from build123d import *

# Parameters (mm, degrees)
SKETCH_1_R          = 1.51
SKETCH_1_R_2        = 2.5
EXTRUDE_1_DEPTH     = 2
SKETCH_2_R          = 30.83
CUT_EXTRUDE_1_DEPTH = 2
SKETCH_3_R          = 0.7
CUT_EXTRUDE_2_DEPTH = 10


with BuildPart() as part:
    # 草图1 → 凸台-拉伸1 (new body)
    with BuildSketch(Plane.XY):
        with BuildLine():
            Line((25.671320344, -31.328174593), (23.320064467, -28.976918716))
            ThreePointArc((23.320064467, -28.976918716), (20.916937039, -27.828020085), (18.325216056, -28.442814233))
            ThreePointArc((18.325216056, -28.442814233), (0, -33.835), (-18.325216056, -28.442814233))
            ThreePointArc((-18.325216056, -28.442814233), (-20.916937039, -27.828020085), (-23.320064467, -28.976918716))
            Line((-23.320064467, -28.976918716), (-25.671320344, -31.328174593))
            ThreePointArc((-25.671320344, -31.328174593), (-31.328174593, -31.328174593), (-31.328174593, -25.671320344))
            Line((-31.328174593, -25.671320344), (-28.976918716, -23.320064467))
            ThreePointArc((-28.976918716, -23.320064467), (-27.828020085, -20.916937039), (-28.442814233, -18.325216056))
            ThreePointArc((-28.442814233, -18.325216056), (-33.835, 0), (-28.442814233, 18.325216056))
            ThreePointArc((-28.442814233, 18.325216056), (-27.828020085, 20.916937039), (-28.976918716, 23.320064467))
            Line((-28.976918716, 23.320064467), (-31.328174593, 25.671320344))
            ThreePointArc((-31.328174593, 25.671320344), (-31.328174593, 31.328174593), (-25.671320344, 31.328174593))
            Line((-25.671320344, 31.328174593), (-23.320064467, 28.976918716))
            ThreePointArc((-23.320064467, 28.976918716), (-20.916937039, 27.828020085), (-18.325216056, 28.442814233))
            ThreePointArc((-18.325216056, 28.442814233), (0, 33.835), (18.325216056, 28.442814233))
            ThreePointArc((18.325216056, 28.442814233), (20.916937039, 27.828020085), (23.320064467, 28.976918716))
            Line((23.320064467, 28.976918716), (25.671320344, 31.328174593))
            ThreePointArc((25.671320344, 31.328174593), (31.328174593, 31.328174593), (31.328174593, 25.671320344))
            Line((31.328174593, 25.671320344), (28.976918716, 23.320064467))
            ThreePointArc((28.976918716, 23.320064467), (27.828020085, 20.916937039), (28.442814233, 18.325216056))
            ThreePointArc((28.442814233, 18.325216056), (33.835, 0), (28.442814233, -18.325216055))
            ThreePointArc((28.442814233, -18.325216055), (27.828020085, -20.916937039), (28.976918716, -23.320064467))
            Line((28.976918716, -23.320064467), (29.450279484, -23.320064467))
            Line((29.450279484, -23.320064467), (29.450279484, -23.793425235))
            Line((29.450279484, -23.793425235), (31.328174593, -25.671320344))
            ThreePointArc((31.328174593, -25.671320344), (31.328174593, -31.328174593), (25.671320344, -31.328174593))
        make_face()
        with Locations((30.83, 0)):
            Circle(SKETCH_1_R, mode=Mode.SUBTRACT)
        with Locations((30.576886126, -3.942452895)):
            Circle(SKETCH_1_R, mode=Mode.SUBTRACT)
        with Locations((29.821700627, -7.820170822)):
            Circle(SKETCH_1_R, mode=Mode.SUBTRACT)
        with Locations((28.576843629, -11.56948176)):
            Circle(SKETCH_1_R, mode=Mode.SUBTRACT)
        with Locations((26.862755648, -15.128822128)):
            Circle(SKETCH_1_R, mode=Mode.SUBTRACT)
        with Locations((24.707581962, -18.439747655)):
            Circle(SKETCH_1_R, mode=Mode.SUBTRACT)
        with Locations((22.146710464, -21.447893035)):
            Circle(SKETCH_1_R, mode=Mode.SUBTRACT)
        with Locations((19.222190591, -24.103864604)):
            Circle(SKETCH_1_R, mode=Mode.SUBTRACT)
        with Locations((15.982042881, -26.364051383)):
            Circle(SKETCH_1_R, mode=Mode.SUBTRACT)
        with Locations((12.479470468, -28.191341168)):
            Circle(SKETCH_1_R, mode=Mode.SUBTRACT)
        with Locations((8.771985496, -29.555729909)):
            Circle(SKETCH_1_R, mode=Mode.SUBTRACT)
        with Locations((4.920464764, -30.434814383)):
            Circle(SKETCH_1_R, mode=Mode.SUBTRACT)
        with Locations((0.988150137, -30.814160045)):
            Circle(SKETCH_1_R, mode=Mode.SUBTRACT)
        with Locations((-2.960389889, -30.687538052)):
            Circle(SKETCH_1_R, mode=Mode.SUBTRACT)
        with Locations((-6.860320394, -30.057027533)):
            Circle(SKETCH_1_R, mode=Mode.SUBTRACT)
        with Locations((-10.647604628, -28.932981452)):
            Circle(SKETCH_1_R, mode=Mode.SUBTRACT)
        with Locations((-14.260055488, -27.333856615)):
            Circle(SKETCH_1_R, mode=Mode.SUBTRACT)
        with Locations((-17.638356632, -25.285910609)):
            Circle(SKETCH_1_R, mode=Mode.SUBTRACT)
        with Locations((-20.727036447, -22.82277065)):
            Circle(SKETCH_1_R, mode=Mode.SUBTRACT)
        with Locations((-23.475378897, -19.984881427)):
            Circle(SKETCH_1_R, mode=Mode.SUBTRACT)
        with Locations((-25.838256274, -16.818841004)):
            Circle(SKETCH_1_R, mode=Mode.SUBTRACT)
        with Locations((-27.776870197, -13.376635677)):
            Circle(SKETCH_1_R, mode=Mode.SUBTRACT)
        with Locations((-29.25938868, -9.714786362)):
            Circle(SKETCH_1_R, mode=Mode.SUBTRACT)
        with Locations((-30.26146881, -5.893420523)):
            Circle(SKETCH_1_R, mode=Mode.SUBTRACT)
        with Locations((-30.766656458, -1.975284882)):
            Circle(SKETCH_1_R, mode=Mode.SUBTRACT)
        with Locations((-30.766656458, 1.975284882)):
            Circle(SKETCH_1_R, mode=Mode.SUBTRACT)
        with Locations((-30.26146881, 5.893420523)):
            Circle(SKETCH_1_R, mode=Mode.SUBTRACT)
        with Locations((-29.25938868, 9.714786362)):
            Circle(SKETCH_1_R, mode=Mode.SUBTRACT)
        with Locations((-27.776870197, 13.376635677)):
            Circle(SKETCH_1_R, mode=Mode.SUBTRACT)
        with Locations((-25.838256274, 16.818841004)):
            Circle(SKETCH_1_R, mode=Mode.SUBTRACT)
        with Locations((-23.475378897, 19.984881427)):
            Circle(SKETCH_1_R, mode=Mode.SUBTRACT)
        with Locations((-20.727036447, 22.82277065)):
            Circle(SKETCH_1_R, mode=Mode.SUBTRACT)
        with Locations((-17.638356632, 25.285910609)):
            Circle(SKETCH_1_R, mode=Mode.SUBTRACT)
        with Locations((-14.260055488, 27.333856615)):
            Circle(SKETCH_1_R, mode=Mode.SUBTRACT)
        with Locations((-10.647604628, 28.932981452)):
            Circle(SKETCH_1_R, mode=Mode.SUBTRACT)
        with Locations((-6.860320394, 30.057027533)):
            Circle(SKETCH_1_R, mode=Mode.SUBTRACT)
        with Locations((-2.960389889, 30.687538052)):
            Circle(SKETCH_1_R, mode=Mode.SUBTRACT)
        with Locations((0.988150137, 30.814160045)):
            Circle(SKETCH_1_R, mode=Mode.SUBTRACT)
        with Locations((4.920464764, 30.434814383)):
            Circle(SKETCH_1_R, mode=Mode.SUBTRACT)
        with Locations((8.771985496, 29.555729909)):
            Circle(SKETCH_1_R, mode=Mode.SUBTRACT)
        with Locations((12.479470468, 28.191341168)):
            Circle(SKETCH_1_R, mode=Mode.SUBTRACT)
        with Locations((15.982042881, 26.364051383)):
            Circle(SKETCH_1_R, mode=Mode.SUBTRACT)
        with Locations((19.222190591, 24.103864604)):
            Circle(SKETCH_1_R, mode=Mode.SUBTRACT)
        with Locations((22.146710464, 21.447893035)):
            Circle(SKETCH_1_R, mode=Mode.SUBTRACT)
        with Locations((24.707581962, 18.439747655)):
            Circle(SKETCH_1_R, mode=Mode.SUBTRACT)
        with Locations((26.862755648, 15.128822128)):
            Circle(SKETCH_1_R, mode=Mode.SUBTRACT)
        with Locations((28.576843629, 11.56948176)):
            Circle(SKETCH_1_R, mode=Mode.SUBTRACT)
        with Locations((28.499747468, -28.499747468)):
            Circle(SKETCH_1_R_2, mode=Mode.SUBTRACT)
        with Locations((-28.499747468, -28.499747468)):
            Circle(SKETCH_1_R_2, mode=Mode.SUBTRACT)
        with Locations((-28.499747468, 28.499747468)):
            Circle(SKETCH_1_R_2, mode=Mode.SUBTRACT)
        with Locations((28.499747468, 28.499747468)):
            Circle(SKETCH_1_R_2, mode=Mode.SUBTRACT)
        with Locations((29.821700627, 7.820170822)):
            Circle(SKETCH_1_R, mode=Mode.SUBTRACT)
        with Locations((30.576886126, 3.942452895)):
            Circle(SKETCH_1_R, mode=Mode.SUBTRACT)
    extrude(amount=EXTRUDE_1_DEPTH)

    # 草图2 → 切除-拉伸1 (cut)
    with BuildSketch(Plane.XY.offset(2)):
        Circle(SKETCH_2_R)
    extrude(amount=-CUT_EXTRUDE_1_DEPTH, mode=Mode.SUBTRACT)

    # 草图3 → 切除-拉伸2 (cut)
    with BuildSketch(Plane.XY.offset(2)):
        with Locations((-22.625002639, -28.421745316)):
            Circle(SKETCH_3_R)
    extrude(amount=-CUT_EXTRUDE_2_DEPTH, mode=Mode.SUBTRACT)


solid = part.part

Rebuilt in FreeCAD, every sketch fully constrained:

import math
import FreeCAD as App
import Part
import Sketcher
Q = App.Units.Quantity

doc = App.newDocument("Part")
body = doc.addObject("PartDesign::Body", "Body")

sketch1 = body.newObject("Sketcher::SketchObject", "Sketch")
sketch1.AttachmentSupport = (doc.getObject("XY_Plane"), [""])
sketch1.MapMode = "FlatFace"
sketch1.addGeometry([
    Part.LineSegment(App.Vector(23.320064, -28.976919, 0), App.Vector(25.67132, -31.328175, 0)),
    Part.ArcOfCircle(Part.Circle(App.Vector(28.499747, -28.499747, 0), App.Vector(0, 0, 1), 4), math.radians(-135), math.radians(45)),
    Part.LineSegment(App.Vector(31.328175, -25.67132, 0), App.Vector(29.450279, -23.793425, 0)),
    Part.LineSegment(App.Vector(29.450279, -23.793425, 0), App.Vector(29.450279, -23.320064, 0)),
    Part.LineSegment(App.Vector(29.450279, -23.320064, 0), App.Vector(28.976919, -23.320064, 0)),
    Part.ArcOfCircle(Part.Circle(App.Vector(31.805346, -20.491637, 0), App.Vector(0, 0, 1), 4), math.radians(147.207013), math.radians(225)),
    Part.ArcOfCircle(Part.Circle(App.Vector(0, 0, 0), App.Vector(0, 0, 1), 33.835), math.radians(-32.792987), math.radians(32.792987)),
    Part.ArcOfCircle(Part.Circle(App.Vector(31.805346, 20.491637, 0), App.Vector(0, 0, 1), 4), math.radians(135), math.radians(212.792987)),
    Part.LineSegment(App.Vector(28.976919, 23.320064, 0), App.Vector(31.328175, 25.67132, 0)),
    Part.ArcOfCircle(Part.Circle(App.Vector(28.499747, 28.499747, 0), App.Vector(0, 0, 1), 4), math.radians(-45), math.radians(135)),
    Part.LineSegment(App.Vector(25.67132, 31.328175, 0), App.Vector(23.320064, 28.976919, 0)),
    Part.ArcOfCircle(Part.Circle(App.Vector(20.491637, 31.805346, 0), App.Vector(0, 0, 1), 4), math.radians(-122.792987), math.radians(-45)),
    Part.ArcOfCircle(Part.Circle(App.Vector(0, 0, 0), App.Vector(0, 0, 1), 33.835), math.radians(57.207013), math.radians(122.792987)),
    Part.ArcOfCircle(Part.Circle(App.Vector(-20.491637, 31.805346, 0), App.Vector(0, 0, 1), 4), math.radians(-135), math.radians(-57.207013)),
    Part.LineSegment(App.Vector(-23.320064, 28.976919, 0), App.Vector(-25.67132, 31.328175, 0)),
    Part.ArcOfCircle(Part.Circle(App.Vector(-28.499747, 28.499747, 0), App.Vector(0, 0, 1), 4), math.radians(45), math.radians(225)),
    Part.LineSegment(App.Vector(-31.328175, 25.67132, 0), App.Vector(-28.976919, 23.320064, 0)),
    Part.ArcOfCircle(Part.Circle(App.Vector(-31.805346, 20.491637, 0), App.Vector(0, 0, 1), 4), math.radians(-32.792987), math.radians(45)),
    Part.ArcOfCircle(Part.Circle(App.Vector(0, 0, 0), App.Vector(0, 0, 1), 33.835), math.radians(147.207013), math.radians(212.792987)),
    Part.ArcOfCircle(Part.Circle(App.Vector(-31.805346, -20.491637, 0), App.Vector(0, 0, 1), 4), math.radians(-45), math.radians(32.792987)),
    Part.LineSegment(App.Vector(-28.976919, -23.320064, 0), App.Vector(-31.328175, -25.67132, 0)),
    Part.ArcOfCircle(Part.Circle(App.Vector(-28.499747, -28.499747, 0), App.Vector(0, 0, 1), 4), math.radians(135), math.radians(315)),
    Part.LineSegment(App.Vector(-25.67132, -31.328175, 0), App.Vector(-23.320064, -28.976919, 0)),
    Part.ArcOfCircle(Part.Circle(App.Vector(-20.491637, -31.805346, 0), App.Vector(0, 0, 1), 4), math.radians(57.207013), math.radians(135)),
    Part.ArcOfCircle(Part.Circle(App.Vector(0, 0, 0), App.Vector(0, 0, 1), 33.835), math.radians(-122.792987), math.radians(-57.207013)),
    Part.ArcOfCircle(Part.Circle(App.Vector(20.491637, -31.805346, 0), App.Vector(0, 0, 1), 4), math.radians(45), math.radians(122.792987)),
    Part.Circle(App.Vector(28.499747, -28.499747, 0), App.Vector(0, 0, 1), 2.5),
    Part.Circle(App.Vector(24.707582, -18.439748, 0), App.Vector(0, 0, 1), 1.51),
    Part.Circle(App.Vector(22.14671, -21.447893, 0), App.Vector(0, 0, 1), 1.51),
    Part.Circle(App.Vector(19.222191, -24.103865, 0), App.Vector(0, 0, 1), 1.51),
    Part.Circle(App.Vector(8.771985, -29.55573, 0), App.Vector(0, 0, 1), 1.51),
    Part.Circle(App.Vector(15.982043, -26.364051, 0), App.Vector(0, 0, 1), 1.51),
    Part.Circle(App.Vector(12.47947, -28.191341, 0), App.Vector(0, 0, 1), 1.51),
    Part.Circle(App.Vector(4.920465, -30.434814, 0), App.Vector(0, 0, 1), 1.51),
    Part.Circle(App.Vector(0.98815, -30.81416, 0), App.Vector(0, 0, 1), 1.51),
    Part.Circle(App.Vector(26.862756, -15.128822, 0), App.Vector(0, 0, 1), 1.51),
    Part.Circle(App.Vector(28.576844, -11.569482, 0), App.Vector(0, 0, 1), 1.51),
    Part.Circle(App.Vector(29.821701, -7.820171, 0), App.Vector(0, 0, 1), 1.51),
    Part.Circle(App.Vector(30.576886, -3.942453, 0), App.Vector(0, 0, 1), 1.51),
    Part.Circle(App.Vector(-2.96039, -30.687538, 0), App.Vector(0, 0, 1), 1.51),
    Part.Circle(App.Vector(-6.86032, -30.057028, 0), App.Vector(0, 0, 1), 1.51),
    Part.Circle(App.Vector(-10.647605, -28.932981, 0), App.Vector(0, 0, 1), 1.51),
    Part.Circle(App.Vector(-14.260055, -27.333857, 0), App.Vector(0, 0, 1), 1.51),
    Part.Circle(App.Vector(-17.638357, -25.285911, 0), App.Vector(0, 0, 1), 1.51),
    Part.Circle(App.Vector(-28.499747, -28.499747, 0), App.Vector(0, 0, 1), 2.5),
    Part.Circle(App.Vector(-20.727036, -22.822771, 0), App.Vector(0, 0, 1), 1.51),
    Part.Circle(App.Vector(-23.475379, -19.984881, 0), App.Vector(0, 0, 1), 1.51),
    Part.Circle(App.Vector(-25.838256, -16.818841, 0), App.Vector(0, 0, 1), 1.51),
    Part.Circle(App.Vector(-27.77687, -13.376636, 0), App.Vector(0, 0, 1), 1.51),
    Part.Circle(App.Vector(-29.259389, -9.714786, 0), App.Vector(0, 0, 1), 1.51),
    Part.Circle(App.Vector(-30.261469, -5.893421, 0), App.Vector(0, 0, 1), 1.51),
    Part.Circle(App.Vector(-30.766656, -1.975285, 0), App.Vector(0, 0, 1), 1.51),
    Part.Circle(App.Vector(30.83, 0, 0), App.Vector(0, 0, 1), 1.51),
    Part.Circle(App.Vector(30.576886, 3.942453, 0), App.Vector(0, 0, 1), 1.51),
    Part.Circle(App.Vector(29.821701, 7.820171, 0), App.Vector(0, 0, 1), 1.51),
    Part.Circle(App.Vector(28.576844, 11.569482, 0), App.Vector(0, 0, 1), 1.51),
    Part.Circle(App.Vector(26.862756, 15.128822, 0), App.Vector(0, 0, 1), 1.51),
    Part.Circle(App.Vector(24.707582, 18.439748, 0), App.Vector(0, 0, 1), 1.51),
    Part.Circle(App.Vector(22.14671, 21.447893, 0), App.Vector(0, 0, 1), 1.51),
    Part.Circle(App.Vector(19.222191, 24.103865, 0), App.Vector(0, 0, 1), 1.51),
    Part.Circle(App.Vector(28.499747, 28.499747, 0), App.Vector(0, 0, 1), 2.5),
    Part.Circle(App.Vector(15.982043, 26.364051, 0), App.Vector(0, 0, 1), 1.51),
    Part.Circle(App.Vector(12.47947, 28.191341, 0), App.Vector(0, 0, 1), 1.51),
    Part.Circle(App.Vector(8.771985, 29.55573, 0), App.Vector(0, 0, 1), 1.51),
    Part.Circle(App.Vector(4.920465, 30.434814, 0), App.Vector(0, 0, 1), 1.51),
    Part.Circle(App.Vector(0.98815, 30.81416, 0), App.Vector(0, 0, 1), 1.51),
    Part.Circle(App.Vector(-30.766656, 1.975285, 0), App.Vector(0, 0, 1), 1.51),
    Part.Circle(App.Vector(-30.261469, 5.893421, 0), App.Vector(0, 0, 1), 1.51),
    Part.Circle(App.Vector(-29.259389, 9.714786, 0), App.Vector(0, 0, 1), 1.51),
    Part.Circle(App.Vector(-27.77687, 13.376636, 0), App.Vector(0, 0, 1), 1.51),
    Part.Circle(App.Vector(-2.96039, 30.687538, 0), App.Vector(0, 0, 1), 1.51),
    Part.Circle(App.Vector(-6.86032, 30.057028, 0), App.Vector(0, 0, 1), 1.51),
    Part.Circle(App.Vector(-14.260055, 27.333857, 0), App.Vector(0, 0, 1), 1.51),
    Part.Circle(App.Vector(-10.647605, 28.932981, 0), App.Vector(0, 0, 1), 1.51),
    Part.Circle(App.Vector(-23.475379, 19.984881, 0), App.Vector(0, 0, 1), 1.51),
    Part.Circle(App.Vector(-20.727036, 22.822771, 0), App.Vector(0, 0, 1), 1.51),
    Part.Circle(App.Vector(-25.838256, 16.818841, 0), App.Vector(0, 0, 1), 1.51),
    Part.Circle(App.Vector(-17.638357, 25.285911, 0), App.Vector(0, 0, 1), 1.51),
    Part.Circle(App.Vector(-28.499747, 28.499747, 0), App.Vector(0, 0, 1), 2.5),
], False)
sketch1.addConstraint([
    Sketcher.Constraint("Tangent", 0, 2, 1, 1),
    Sketcher.Constraint("Tangent", 1, 2, 2, 1),
    Sketcher.Constraint("Coincident", 2, 2, 3, 1),
    Sketcher.Constraint("Coincident", 3, 2, 4, 1),
    Sketcher.Constraint("Coincident", 4, 2, 5, 2),
    Sketcher.Constraint("Tangent", 5, 1, 6, 1),
    Sketcher.Constraint("Tangent", 6, 2, 7, 2),
    Sketcher.Constraint("Tangent", 7, 1, 8, 1),
    Sketcher.Constraint("Tangent", 8, 2, 9, 1),
    Sketcher.Constraint("Tangent", 9, 2, 10, 1),
    Sketcher.Constraint("Tangent", 10, 2, 11, 2),
    Sketcher.Constraint("Tangent", 11, 1, 12, 1),
    Sketcher.Constraint("Tangent", 12, 2, 13, 2),
    Sketcher.Constraint("Tangent", 13, 1, 14, 1),
    Sketcher.Constraint("Tangent", 14, 2, 15, 1),
    Sketcher.Constraint("Tangent", 15, 2, 16, 1),
    Sketcher.Constraint("Tangent", 16, 2, 17, 2),
    Sketcher.Constraint("Tangent", 17, 1, 18, 1),
    Sketcher.Constraint("Tangent", 18, 2, 19, 2),
    Sketcher.Constraint("Tangent", 19, 1, 20, 1),
    Sketcher.Constraint("Tangent", 20, 2, 21, 1),
    Sketcher.Constraint("Tangent", 21, 2, 22, 1),
    Sketcher.Constraint("Tangent", 22, 2, 23, 2),
    Sketcher.Constraint("Tangent", 23, 1, 24, 1),
    Sketcher.Constraint("Tangent", 24, 2, 25, 2),
    Sketcher.Constraint("Tangent", 25, 1, 0, 1),
    Sketcher.Constraint("Vertical", 3),
    Sketcher.Constraint("Horizontal", 4),
    Sketcher.Constraint("Coincident", 6, 3, -1, 1),
    Sketcher.Constraint("Coincident", 12, 3, -1, 1),
    Sketcher.Constraint("Coincident", 18, 3, -1, 1),
    Sketcher.Constraint("Coincident", 24, 3, -1, 1),
    Sketcher.Constraint("Coincident", 26, 3, 1, 3),
    Sketcher.Constraint("Coincident", 44, 3, 21, 3),
    Sketcher.Constraint("Coincident", 60, 3, 9, 3),
    Sketcher.Constraint("Coincident", 78, 3, 15, 3),
    Sketcher.Constraint("Equal", 1, 5),
    Sketcher.Constraint("Equal", 5, 7),
    Sketcher.Constraint("Equal", 7, 9),
    Sketcher.Constraint("Equal", 9, 11),
    Sketcher.Constraint("Equal", 6, 12),
    Sketcher.Constraint("Equal", 11, 13),
    Sketcher.Constraint("Equal", 13, 15),
    Sketcher.Constraint("Equal", 15, 17),
    Sketcher.Constraint("Equal", 12, 18),
    Sketcher.Constraint("Equal", 17, 19),
    Sketcher.Constraint("Equal", 19, 21),
    Sketcher.Constraint("Equal", 21, 23),
    Sketcher.Constraint("Equal", 18, 24),
    Sketcher.Constraint("Equal", 23, 25),
    Sketcher.Constraint("Equal", 27, 28),
    Sketcher.Constraint("Equal", 28, 29),
    Sketcher.Constraint("Equal", 29, 30),
    Sketcher.Constraint("Equal", 30, 31),
    Sketcher.Constraint("Equal", 31, 32),
    Sketcher.Constraint("Equal", 32, 33),
    Sketcher.Constraint("Equal", 33, 34),
    Sketcher.Constraint("Equal", 34, 35),
    Sketcher.Constraint("Equal", 35, 36),
    Sketcher.Constraint("Equal", 36, 37),
    Sketcher.Constraint("Equal", 37, 38),
    Sketcher.Constraint("Equal", 38, 39),
    Sketcher.Constraint("Equal", 39, 40),
    Sketcher.Constraint("Equal", 40, 41),
    Sketcher.Constraint("Equal", 41, 42),
    Sketcher.Constraint("Equal", 42, 43),
    Sketcher.Constraint("Equal", 26, 44),
    Sketcher.Constraint("Equal", 43, 45),
    Sketcher.Constraint("Equal", 45, 46),
    Sketcher.Constraint("Equal", 46, 47),
    Sketcher.Constraint("Equal", 47, 48),
    Sketcher.Constraint("Equal", 48, 49),
    Sketcher.Constraint("Equal", 49, 50),
    Sketcher.Constraint("Equal", 50, 51),
    Sketcher.Constraint("Equal", 51, 52),
    Sketcher.Constraint("Equal", 52, 53),
    Sketcher.Constraint("Equal", 53, 54),
    Sketcher.Constraint("Equal", 54, 55),
    Sketcher.Constraint("Equal", 55, 56),
    Sketcher.Constraint("Equal", 56, 57),
    Sketcher.Constraint("Equal", 57, 58),
    Sketcher.Constraint("Equal", 58, 59),
    Sketcher.Constraint("Equal", 44, 60),
    Sketcher.Constraint("Equal", 59, 61),
    Sketcher.Constraint("Equal", 61, 62),
    Sketcher.Constraint("Equal", 62, 63),
    Sketcher.Constraint("Equal", 63, 64),
    Sketcher.Constraint("Equal", 64, 65),
    Sketcher.Constraint("Equal", 65, 66),
    Sketcher.Constraint("Equal", 66, 67),
    Sketcher.Constraint("Equal", 67, 68),
    Sketcher.Constraint("Equal", 68, 69),
    Sketcher.Constraint("Equal", 69, 70),
    Sketcher.Constraint("Equal", 70, 71),
    Sketcher.Constraint("Equal", 71, 72),
    Sketcher.Constraint("Equal", 72, 73),
    Sketcher.Constraint("Equal", 73, 74),
    Sketcher.Constraint("Equal", 74, 75),
    Sketcher.Constraint("Equal", 75, 76),
    Sketcher.Constraint("Equal", 76, 77),
    Sketcher.Constraint("Equal", 60, 78),
    Sketcher.Constraint("Symmetric", 1, 3, 15, 3, -1, 1),
    Sketcher.Constraint("Symmetric", 9, 3, 21, 3, -1, 1),
    Sketcher.Constraint("Symmetric", 4, 2, 16, 2, -1, 1),
    Sketcher.Constraint("Symmetric", 9, 3, 15, 3, -2),
    Sketcher.Constraint("Symmetric", 38, 3, 53, 3, -1),
    Sketcher.Constraint("Symmetric", 37, 3, 54, 3, -1),
    Sketcher.Constraint("Symmetric", 36, 3, 55, 3, -1),
    Sketcher.Constraint("Symmetric", 35, 3, 56, 3, -1),
    Sketcher.Constraint("Symmetric", 27, 3, 57, 3, -1),
    Sketcher.Constraint("Symmetric", 28, 3, 58, 3, -1),
    Sketcher.Constraint("Symmetric", 29, 3, 59, 3, -1),
    Sketcher.Constraint("Symmetric", 31, 3, 61, 3, -1),
    Sketcher.Constraint("Symmetric", 32, 3, 62, 3, -1),
    Sketcher.Constraint("Symmetric", 30, 3, 63, 3, -1),
    Sketcher.Constraint("Symmetric", 33, 3, 64, 3, -1),
    Sketcher.Constraint("Symmetric", 34, 3, 65, 3, -1),
    Sketcher.Constraint("Symmetric", 51, 3, 66, 3, -1),
    Sketcher.Constraint("Symmetric", 50, 3, 67, 3, -1),
    Sketcher.Constraint("Symmetric", 49, 3, 68, 3, -1),
    Sketcher.Constraint("Symmetric", 48, 3, 69, 3, -1),
    Sketcher.Constraint("Symmetric", 39, 3, 70, 3, -1),
    Sketcher.Constraint("Symmetric", 40, 3, 71, 3, -1),
    Sketcher.Constraint("Symmetric", 42, 3, 72, 3, -1),
    Sketcher.Constraint("Symmetric", 41, 3, 73, 3, -1),
    Sketcher.Constraint("Symmetric", 46, 3, 74, 3, -1),
    Sketcher.Constraint("Symmetric", 45, 3, 75, 3, -1),
    Sketcher.Constraint("Symmetric", 47, 3, 76, 3, -1),
    Sketcher.Constraint("Symmetric", 43, 3, 77, 3, -1),
    Sketcher.Constraint("PointOnObject", 52, 3, -1),
    Sketcher.Constraint("Parallel", 0, 2),
    Sketcher.Constraint("Perpendicular", 2, 8),
    Sketcher.Constraint("Parallel", 8, 10),
    Sketcher.Constraint("Perpendicular", 10, 14),
    Sketcher.Constraint("Parallel", 14, 16),
    Sketcher.Constraint("Perpendicular", 16, 20),
    Sketcher.Constraint("Parallel", 20, 22),
    Sketcher.Constraint("Horizontal", 11, 3, 13, 3),
    Sketcher.Constraint("Equal", 0, 8),
    Sketcher.Constraint("Diameter", 26, Q("5 mm")),
    Sketcher.Constraint("Radius", 1, Q("4 mm")),
    Sketcher.Constraint("Diameter", 27, Q("3.02 mm")),
    Sketcher.Constraint("Radius", 6, Q("33.835 mm")),
    Sketcher.Constraint("DistanceX", -1, 1, 52, 3, Q("30.83 mm")),
    Sketcher.Constraint("DistanceX", 4, 2, 4, 1, Q("0.473361 mm")),
    Sketcher.Constraint("DistanceX", -1, 1, 37, 3, Q("29.821701 mm")),
    Sketcher.Constraint("DistanceX", -1, 1, 27, 3, Q("24.707582 mm")),
    Sketcher.Constraint("DistanceX", -1, 1, 28, 3, Q("22.14671 mm")),
    Sketcher.Constraint("DistanceX", -1, 1, 29, 3, Q("19.222191 mm")),
    Sketcher.Constraint("DistanceY", 30, 3, -1, 1, Q("29.55573 mm")),
    Sketcher.Constraint("DistanceY", 31, 3, -1, 1, Q("26.364051 mm")),
    Sketcher.Constraint("DistanceX", -1, 1, 32, 3, Q("12.47947 mm")),
    Sketcher.Constraint("DistanceY", 32, 3, -1, 1, Q("28.191341 mm")),
    Sketcher.Constraint("DistanceX", -1, 1, 34, 3, Q("0.98815 mm")),
    Sketcher.Constraint("DistanceY", 34, 3, -1, 1, Q("30.81416 mm")),
    Sketcher.Constraint("DistanceY", 36, 3, -1, 1, Q("11.569482 mm")),
    Sketcher.Constraint("DistanceY", 37, 3, -1, 1, Q("7.820171 mm")),
    Sketcher.Constraint("DistanceX", 39, 3, -1, 1, Q("2.96039 mm")),
    Sketcher.Constraint("DistanceY", 39, 3, -1, 1, Q("30.687538 mm")),
    Sketcher.Constraint("DistanceX", 40, 3, -1, 1, Q("6.86032 mm")),
    Sketcher.Constraint("DistanceY", 41, 3, -1, 1, Q("28.932981 mm")),
    Sketcher.Constraint("DistanceY", 43, 3, -1, 1, Q("25.285911 mm")),
    Sketcher.Constraint("DistanceY", 45, 3, -1, 1, Q("22.822771 mm")),
    Sketcher.Constraint("DistanceX", 46, 3, -1, 1, Q("23.475379 mm")),
    Sketcher.Constraint("DistanceY", 46, 3, -1, 1, Q("19.984881 mm")),
    Sketcher.Constraint("DistanceY", 47, 3, -1, 1, Q("16.818841 mm")),
    Sketcher.Constraint("DistanceX", 48, 3, -1, 1, Q("27.77687 mm")),
    Sketcher.Constraint("DistanceX", 49, 3, -1, 1, Q("29.259389 mm")),
    Sketcher.Constraint("DistanceX", 50, 3, -1, 1, Q("30.261469 mm")),
    Sketcher.Constraint("DistanceY", 50, 3, -1, 1, Q("5.893421 mm")),
    Sketcher.Constraint("DistanceX", -1, 1, 0, 2, Q("25.67132 mm")),
    Sketcher.Constraint("DistanceY", 27, 3, -1, 1, Q("18.439748 mm")),
    Sketcher.Constraint("DistanceY", 28, 3, -1, 1, Q("21.447893 mm")),
    Sketcher.Constraint("DistanceY", 29, 3, -1, 1, Q("24.103865 mm")),
    Sketcher.Constraint("DistanceX", -1, 1, 30, 3, Q("8.771985 mm")),
    Sketcher.Constraint("DistanceX", -1, 1, 31, 3, Q("15.982043 mm")),
    Sketcher.Constraint("DistanceX", -1, 1, 33, 3, Q("4.920465 mm")),
    Sketcher.Constraint("DistanceY", 33, 3, -1, 1, Q("30.434814 mm")),
    Sketcher.Constraint("DistanceX", -1, 1, 35, 3, Q("26.862756 mm")),
    Sketcher.Constraint("DistanceY", 35, 3, -1, 1, Q("15.128822 mm")),
    Sketcher.Constraint("DistanceX", -1, 1, 36, 3, Q("28.576844 mm")),
    Sketcher.Constraint("DistanceX", -1, 1, 38, 3, Q("30.576886 mm")),
    Sketcher.Constraint("DistanceY", 38, 3, -1, 1, Q("3.942453 mm")),
    Sketcher.Constraint("DistanceY", 40, 3, -1, 1, Q("30.057028 mm")),
    Sketcher.Constraint("DistanceX", 41, 3, -1, 1, Q("10.647605 mm")),
    Sketcher.Constraint("DistanceX", 42, 3, -1, 1, Q("14.260055 mm")),
    Sketcher.Constraint("DistanceY", 42, 3, -1, 1, Q("27.333857 mm")),
    Sketcher.Constraint("DistanceX", 43, 3, -1, 1, Q("17.638357 mm")),
    Sketcher.Constraint("DistanceX", 45, 3, -1, 1, Q("20.727036 mm")),
    Sketcher.Constraint("DistanceX", 47, 3, -1, 1, Q("25.838256 mm")),
    Sketcher.Constraint("DistanceY", 48, 3, -1, 1, Q("13.376636 mm")),
    Sketcher.Constraint("DistanceY", 49, 3, -1, 1, Q("9.714786 mm")),
    Sketcher.Constraint("DistanceX", 51, 3, -1, 1, Q("30.766656 mm")),
    Sketcher.Constraint("DistanceY", 51, 3, -1, 1, Q("1.975285 mm")),
])
pad1 = body.newObject("PartDesign::Pad", "Pad")
pad1.Profile = sketch1
pad1.Length = 2

sketch2 = body.newObject("Sketcher::SketchObject", "Sketch001")
sketch2.AttachmentSupport = (doc.getObject("XY_Plane"), [""])
sketch2.MapMode = "FlatFace"
sketch2.AttachmentOffset = App.Placement(App.Vector(0, 0, 2), App.Rotation())
sketch2.addGeometry(Part.Circle(App.Vector(0, 0, 0), App.Vector(0, 0, 1), 30.83), False)
sketch2.addConstraint([
    Sketcher.Constraint("Coincident", 0, 3, -1, 1),
    Sketcher.Constraint("Diameter", 0, Q("61.66 mm")),
])
pocket1 = body.newObject("PartDesign::Pocket", "Pocket")
pocket1.Profile = sketch2
pocket1.Length = 2

sketch3 = body.newObject("Sketcher::SketchObject", "Sketch002")
sketch3.AttachmentSupport = (doc.getObject("XY_Plane"), [""])
sketch3.MapMode = "FlatFace"
sketch3.AttachmentOffset = App.Placement(App.Vector(0, 0, 2), App.Rotation())
sketch3.addGeometry(Part.Circle(App.Vector(-22.625003, -28.421745, 0), App.Vector(0, 0, 1), 0.7), False)
sketch3.addConstraint([
    Sketcher.Constraint("Diameter", 0, Q("1.4 mm")),
    Sketcher.Constraint("DistanceX", 0, 3, -1, 1, Q("22.625003 mm")),
    Sketcher.Constraint("DistanceY", 0, 3, -1, 1, Q("28.421745 mm")),
])
pocket2 = body.newObject("PartDesign::Pocket", "Pocket001")
pocket2.Profile = sketch3
pocket2.Length = 10

doc.recompute()
